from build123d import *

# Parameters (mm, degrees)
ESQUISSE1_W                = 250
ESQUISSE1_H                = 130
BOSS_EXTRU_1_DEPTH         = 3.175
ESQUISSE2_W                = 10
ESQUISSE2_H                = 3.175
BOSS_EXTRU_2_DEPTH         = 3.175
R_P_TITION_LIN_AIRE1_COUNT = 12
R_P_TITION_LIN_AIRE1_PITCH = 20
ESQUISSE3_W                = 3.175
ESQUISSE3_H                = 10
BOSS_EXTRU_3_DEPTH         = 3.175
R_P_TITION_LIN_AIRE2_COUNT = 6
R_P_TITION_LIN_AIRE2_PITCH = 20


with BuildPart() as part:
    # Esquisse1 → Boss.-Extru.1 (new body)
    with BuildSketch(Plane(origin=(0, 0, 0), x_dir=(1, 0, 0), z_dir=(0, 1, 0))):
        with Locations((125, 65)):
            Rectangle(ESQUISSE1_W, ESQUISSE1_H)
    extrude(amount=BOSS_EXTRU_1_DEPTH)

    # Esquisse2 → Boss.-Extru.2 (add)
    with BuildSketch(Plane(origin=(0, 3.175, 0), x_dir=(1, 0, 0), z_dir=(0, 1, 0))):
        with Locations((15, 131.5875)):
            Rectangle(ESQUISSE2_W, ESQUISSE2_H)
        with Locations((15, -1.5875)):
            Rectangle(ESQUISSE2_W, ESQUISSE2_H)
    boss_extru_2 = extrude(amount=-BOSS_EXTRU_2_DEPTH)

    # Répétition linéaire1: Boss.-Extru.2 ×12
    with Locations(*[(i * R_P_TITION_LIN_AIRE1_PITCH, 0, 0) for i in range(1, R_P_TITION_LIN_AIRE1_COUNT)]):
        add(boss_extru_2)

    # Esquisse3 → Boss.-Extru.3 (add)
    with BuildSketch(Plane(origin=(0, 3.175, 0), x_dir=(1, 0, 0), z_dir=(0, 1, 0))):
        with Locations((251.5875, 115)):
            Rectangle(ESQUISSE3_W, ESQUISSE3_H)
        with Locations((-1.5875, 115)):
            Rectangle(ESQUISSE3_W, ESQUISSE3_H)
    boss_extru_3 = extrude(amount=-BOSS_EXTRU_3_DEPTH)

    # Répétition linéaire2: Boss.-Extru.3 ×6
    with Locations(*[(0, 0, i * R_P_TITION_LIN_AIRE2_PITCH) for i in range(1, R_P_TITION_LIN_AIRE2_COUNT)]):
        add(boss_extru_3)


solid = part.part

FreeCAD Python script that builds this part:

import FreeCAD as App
import Part
import Sketcher
from FreeCAD import Vector
Q = App.Units.Quantity


def add_polygon(sketch, points):
    """Adds a closed chain of lines whose ends are joined by coincident constraints."""
    first, n = sketch.GeometryCount, len(points)
    for a, b in zip(points, points[1:] + points[:1]):
        sketch.addGeometry(Part.LineSegment(App.Vector(*a, 0), App.Vector(*b, 0)), False)
    for i in range(n):
        sketch.addConstraint(Sketcher.Constraint("Coincident", first + i, 2, first + (i + 1) % n, 1))

doc = App.newDocument("Part")
body = doc.addObject("PartDesign::Body", "Body")

# Sketch on XZ plane
sketch1 = body.newObject("Sketcher::SketchObject", "Sketch")
sketch1.AttachmentSupport = (doc.getObject("XZ_Plane"), [""])
sketch1.MapMode = "FlatFace"
add_polygon(sketch1, [(0, -130), (0, 0), (250, 0), (250, -130)])  # lines 0-3
sketch1.addConstraint([
    Sketcher.Constraint("Vertical", 0),
    Sketcher.Constraint("Horizontal", 1),
    Sketcher.Constraint("Vertical", 2),
    Sketcher.Constraint("Horizontal", 3),
    Sketcher.Constraint("Coincident", 0, 2, -1, 1),
    Sketcher.Constraint("DistanceX", 1, 1, 1, 2, Q("250 mm")),
    Sketcher.Constraint("DistanceY", 0, 1, 0, 2, Q("130 mm")),
])
pad1 = body.newObject("PartDesign::Pad", "Pad")
pad1.Profile = sketch1
pad1.Length = 3.175
pad1.Reversed = True

# Sketch on XZ plane
sketch2 = body.newObject("Sketcher::SketchObject", "Sketch001")
sketch2.AttachmentSupport = (doc.getObject("XZ_Plane"), [""])
sketch2.MapMode = "FlatFace"
sketch2.AttachmentOffset = App.Placement(Vector(0, 0, -3.175), App.Rotation())
add_polygon(sketch2, [(10, -133.2), (10, -130), (20, -130), (20, -133.2)])  # lines 0-3
add_polygon(sketch2, [(10, 0), (10, 3.2), (20, 3.2), (20, 0)])  # lines 4-7
sketch2.addConstraint([
    Sketcher.Constraint("Vertical", 0),
    Sketcher.Constraint("Horizontal", 1),
    Sketcher.Constraint("Vertical", 2),
    Sketcher.Constraint("Horizontal", 3),
    Sketcher.Constraint("Vertical", 4),
    Sketcher.Constraint("Horizontal", 5),
    Sketcher.Constraint("Vertical", 6),
    Sketcher.Constraint("Horizontal", 7),
    Sketcher.Constraint("PointOnObject", 6, 2, -1),
    Sketcher.Constraint("Vertical", 3, 2, 4, 2),
    Sketcher.Constraint("Vertical", 2, 2, 5, 2),
    Sketcher.Constraint("Equal", 2, 4),
    Sketcher.Constraint("DistanceX", 1, 1, 1, 2, Q("10 mm")),
    Sketcher.Constraint("DistanceX", -1, 1, 0, 2, Q("10 mm")),
    Sketcher.Constraint("DistanceY", 0, 2, -1, 1, Q("130 mm")),
    Sketcher.Constraint("DistanceY", 0, 1, 0, 2, Q("3.175 mm")),
])
pad2 = body.newObject("PartDesign::Pad", "Pad001")
pad2.Profile = sketch2
pad2.Length = 3.175
doc.recompute()

linearpattern = body.newObject("PartDesign::LinearPattern", "LinearPattern")
linearpattern.Originals = [pad2]
linearpattern.Direction = (doc.getObject("X_Axis"), [""])
linearpattern.Mode = "offset"
linearpattern.Offset = 20
linearpattern.Occurrences = 12
body.Tip = linearpattern

# Sketch on XZ plane
sketch3 = body.newObject("Sketcher::SketchObject", "Sketch002")
sketch3.AttachmentSupport = (doc.getObject("XZ_Plane"), [""])
sketch3.MapMode = "FlatFace"
sketch3.AttachmentOffset = App.Placement(Vector(0, 0, -3.175), App.Rotation())
add_polygon(sketch3, [(250, -120), (250, -110), (253.2, -110), (253.2, -120)])  # lines 0-3
add_polygon(sketch3, [(-3.2, -120), (-3.2, -110), (0, -110), (0, -120)])  # lines 4-7
sketch3.addConstraint([
    Sketcher.Constraint("Vertical", 0),
    Sketcher.Constraint("Horizontal", 1),
    Sketcher.Constraint("Vertical", 2),
    Sketcher.Constraint("Horizontal", 3),
    Sketcher.Constraint("Vertical", 4),
    Sketcher.Constraint("Horizontal", 5),
    Sketcher.Constraint("Vertical", 6),
    Sketcher.Constraint("Horizontal", 7),
    Sketcher.Constraint("PointOnObject", 5, 2, -2),
    Sketcher.Constraint("Horizontal", 1, 2, 4, 2),
    Sketcher.Constraint("Horizontal", 3, 2, 6, 2),
    Sketcher.Constraint("Equal", 3, 5),
    Sketcher.Constraint("DistanceY", 0, 1, 0, 2, Q("10 mm")),
    Sketcher.Constraint("DistanceX", -1, 1, 0, 2, Q("250 mm")),
    Sketcher.Constraint("DistanceY", 0, 2, -1, 1, Q("110 mm")),
    Sketcher.Constraint("DistanceX", 1, 1, 1, 2, Q("3.175 mm")),
])
pad3 = body.newObject("PartDesign::Pad", "Pad002")
pad3.Profile = sketch3
pad3.Length = 3.175
doc.recompute()

linearpattern2 = body.newObject("PartDesign::LinearPattern", "LinearPattern001")
linearpattern2.Originals = [pad3]
linearpattern2.Direction = (doc.getObject("Z_Axis"), [""])
linearpattern2.Mode = "offset"
linearpattern2.Offset = 20
linearpattern2.Occurrences = 6
body.Tip = linearpattern2

doc.recompute()
